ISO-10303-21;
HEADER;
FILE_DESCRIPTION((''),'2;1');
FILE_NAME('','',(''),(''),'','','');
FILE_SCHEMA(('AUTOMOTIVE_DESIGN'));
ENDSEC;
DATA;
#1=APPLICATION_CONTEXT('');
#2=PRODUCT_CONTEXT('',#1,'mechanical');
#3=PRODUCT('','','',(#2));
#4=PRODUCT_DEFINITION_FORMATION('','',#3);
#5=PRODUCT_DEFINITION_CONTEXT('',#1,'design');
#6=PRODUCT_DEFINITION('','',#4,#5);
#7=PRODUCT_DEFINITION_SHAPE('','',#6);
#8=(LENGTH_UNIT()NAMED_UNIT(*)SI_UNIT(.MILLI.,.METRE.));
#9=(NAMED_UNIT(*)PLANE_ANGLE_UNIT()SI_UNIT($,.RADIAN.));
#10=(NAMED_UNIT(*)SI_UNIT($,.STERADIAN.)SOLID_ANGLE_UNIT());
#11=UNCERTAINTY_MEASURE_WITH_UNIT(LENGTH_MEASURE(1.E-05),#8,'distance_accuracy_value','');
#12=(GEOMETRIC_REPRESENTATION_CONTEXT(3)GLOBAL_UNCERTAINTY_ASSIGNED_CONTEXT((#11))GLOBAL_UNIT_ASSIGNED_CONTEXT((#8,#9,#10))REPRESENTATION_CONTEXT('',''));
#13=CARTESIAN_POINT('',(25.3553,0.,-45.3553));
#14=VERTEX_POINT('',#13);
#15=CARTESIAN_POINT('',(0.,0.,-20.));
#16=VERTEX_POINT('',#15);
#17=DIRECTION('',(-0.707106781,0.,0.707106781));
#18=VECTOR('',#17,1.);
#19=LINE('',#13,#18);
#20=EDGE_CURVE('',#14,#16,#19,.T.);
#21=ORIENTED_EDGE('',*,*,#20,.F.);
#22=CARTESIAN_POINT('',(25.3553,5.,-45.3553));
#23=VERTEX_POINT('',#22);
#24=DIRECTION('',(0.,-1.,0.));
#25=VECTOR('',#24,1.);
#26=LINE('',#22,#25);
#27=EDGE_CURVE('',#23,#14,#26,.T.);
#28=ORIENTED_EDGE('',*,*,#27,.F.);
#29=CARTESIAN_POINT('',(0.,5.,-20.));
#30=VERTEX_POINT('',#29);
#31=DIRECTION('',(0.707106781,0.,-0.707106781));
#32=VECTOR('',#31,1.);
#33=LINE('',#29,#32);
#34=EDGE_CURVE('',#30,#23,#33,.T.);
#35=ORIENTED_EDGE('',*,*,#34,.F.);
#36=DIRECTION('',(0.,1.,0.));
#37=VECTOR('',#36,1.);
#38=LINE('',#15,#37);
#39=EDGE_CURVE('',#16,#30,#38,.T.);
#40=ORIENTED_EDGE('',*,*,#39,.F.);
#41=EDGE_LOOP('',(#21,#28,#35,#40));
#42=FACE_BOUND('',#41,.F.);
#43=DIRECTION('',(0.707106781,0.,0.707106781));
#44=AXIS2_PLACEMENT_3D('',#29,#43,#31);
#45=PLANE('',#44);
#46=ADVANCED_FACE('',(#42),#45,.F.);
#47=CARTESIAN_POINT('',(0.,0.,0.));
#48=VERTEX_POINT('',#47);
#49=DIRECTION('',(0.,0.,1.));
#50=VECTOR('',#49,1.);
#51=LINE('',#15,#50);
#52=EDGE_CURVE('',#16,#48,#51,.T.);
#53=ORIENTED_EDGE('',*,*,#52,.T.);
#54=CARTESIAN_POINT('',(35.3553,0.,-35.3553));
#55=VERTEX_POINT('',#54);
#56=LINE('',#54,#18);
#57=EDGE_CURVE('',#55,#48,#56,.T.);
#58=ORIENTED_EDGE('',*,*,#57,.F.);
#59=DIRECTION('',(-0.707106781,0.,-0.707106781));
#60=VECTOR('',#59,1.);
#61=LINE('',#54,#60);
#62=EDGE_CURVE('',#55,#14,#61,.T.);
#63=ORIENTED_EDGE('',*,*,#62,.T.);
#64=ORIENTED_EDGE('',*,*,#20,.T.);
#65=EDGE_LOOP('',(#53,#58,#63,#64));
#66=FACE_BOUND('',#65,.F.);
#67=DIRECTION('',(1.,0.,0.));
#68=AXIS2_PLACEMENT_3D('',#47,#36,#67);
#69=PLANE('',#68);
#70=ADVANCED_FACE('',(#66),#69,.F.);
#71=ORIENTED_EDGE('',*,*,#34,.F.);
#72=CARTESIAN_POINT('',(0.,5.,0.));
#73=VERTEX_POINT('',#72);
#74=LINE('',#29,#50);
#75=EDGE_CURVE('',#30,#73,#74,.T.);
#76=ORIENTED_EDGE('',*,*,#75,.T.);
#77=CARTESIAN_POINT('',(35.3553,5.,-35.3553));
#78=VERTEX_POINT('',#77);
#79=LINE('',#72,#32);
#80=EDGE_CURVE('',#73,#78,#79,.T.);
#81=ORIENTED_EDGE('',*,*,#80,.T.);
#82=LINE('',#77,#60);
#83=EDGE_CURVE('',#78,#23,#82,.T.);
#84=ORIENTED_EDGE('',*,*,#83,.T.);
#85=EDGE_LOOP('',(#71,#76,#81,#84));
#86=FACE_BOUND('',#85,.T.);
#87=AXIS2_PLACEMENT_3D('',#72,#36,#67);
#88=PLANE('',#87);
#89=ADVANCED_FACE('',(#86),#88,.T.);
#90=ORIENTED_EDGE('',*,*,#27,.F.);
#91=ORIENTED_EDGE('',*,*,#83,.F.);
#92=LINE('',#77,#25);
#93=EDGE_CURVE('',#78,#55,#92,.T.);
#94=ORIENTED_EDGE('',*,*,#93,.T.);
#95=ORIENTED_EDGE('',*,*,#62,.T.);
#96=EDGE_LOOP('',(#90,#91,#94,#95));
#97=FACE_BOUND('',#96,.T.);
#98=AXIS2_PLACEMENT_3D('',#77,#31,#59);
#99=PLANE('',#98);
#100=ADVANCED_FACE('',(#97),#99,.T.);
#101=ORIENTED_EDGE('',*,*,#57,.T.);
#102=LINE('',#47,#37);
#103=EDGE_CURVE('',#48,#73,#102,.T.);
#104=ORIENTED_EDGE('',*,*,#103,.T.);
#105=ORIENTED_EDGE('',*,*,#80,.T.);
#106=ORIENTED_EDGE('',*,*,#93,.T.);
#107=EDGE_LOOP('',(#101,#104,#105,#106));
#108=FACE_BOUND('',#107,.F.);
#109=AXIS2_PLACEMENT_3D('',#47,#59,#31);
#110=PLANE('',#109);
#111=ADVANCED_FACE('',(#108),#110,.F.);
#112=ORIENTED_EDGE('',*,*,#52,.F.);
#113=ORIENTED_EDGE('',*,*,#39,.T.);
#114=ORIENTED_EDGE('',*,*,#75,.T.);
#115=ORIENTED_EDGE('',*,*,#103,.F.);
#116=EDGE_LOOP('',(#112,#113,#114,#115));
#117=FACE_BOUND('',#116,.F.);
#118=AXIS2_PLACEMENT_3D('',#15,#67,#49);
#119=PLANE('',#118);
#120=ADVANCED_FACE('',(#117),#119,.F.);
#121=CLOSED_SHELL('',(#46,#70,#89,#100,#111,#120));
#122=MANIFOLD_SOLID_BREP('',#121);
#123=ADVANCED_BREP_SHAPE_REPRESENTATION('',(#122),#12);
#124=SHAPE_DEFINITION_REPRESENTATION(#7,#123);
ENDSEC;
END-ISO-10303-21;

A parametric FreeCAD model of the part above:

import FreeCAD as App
import Part
import Sketcher
from FreeCAD import Vector
Q = App.Units.Quantity


def add_polygon(sketch, points):
    """Adds a closed chain of lines whose ends are joined by coincident constraints."""
    first, n = sketch.GeometryCount, len(points)
    for a, b in zip(points, points[1:] + points[:1]):
        sketch.addGeometry(Part.LineSegment(App.Vector(*a, 0), App.Vector(*b, 0)), False)
    for i in range(n):
        sketch.addConstraint(Sketcher.Constraint("Coincident", first + i, 2, first + (i + 1) % n, 1))

doc = App.newDocument("Part")
body = doc.addObject("PartDesign::Body", "Body")

# Sketch on XZ plane
sketch1 = body.newObject("Sketcher::SketchObject", "Sketch")
sketch1.AttachmentSupport = (doc.getObject("XZ_Plane"), [""])
sketch1.MapMode = "FlatFace"
add_polygon(sketch1, [(0, -20), (0, 0), (20, 0), (20, -20)])  # lines 0-3
sketch1.addConstraint([
    Sketcher.Constraint("Vertical", 0),
    Sketcher.Constraint("Horizontal", 1),
    Sketcher.Constraint("Vertical", 2),
    Sketcher.Constraint("Horizontal", 3),
    Sketcher.Constraint("Coincident", 0, 2, -1, 1),
    Sketcher.Constraint("Equal", 3, 0),
    Sketcher.Constraint("DistanceX", 1, 1, 1, 2, Q("20 mm")),
])
pad1 = body.newObject("PartDesign::Pad", "Pad")
pad1.Profile = sketch1
pad1.Length = 5
pad1.Reversed = True

# Sketch on XZ plane
sketch2 = body.newObject("Sketcher::SketchObject", "Sketch001")
sketch2.AttachmentSupport = (doc.getObject("XZ_Plane"), [""])
sketch2.MapMode = "FlatFace"
add_polygon(sketch2, [(20, 0), (0, 0), (20, -20)])  # lines 0-2
sketch2.addConstraint([
    Sketcher.Constraint("Horizontal", 0),
    Sketcher.Constraint("Vertical", 2),
    Sketcher.Constraint("Coincident", 0, 2, -1, 1),
    Sketcher.Constraint("Equal", 0, 2),
    Sketcher.Constraint("DistanceX", 0, 2, 0, 1, Q("20 mm")),
])
pocket1 = body.newObject("PartDesign::Pocket", "Pocket")
pocket1.Profile = sketch2
pocket1.Length = 5

# Sketch on XZ plane
sketch3 = body.newObject("Sketcher::SketchObject", "Sketch002")
sketch3.AttachmentSupport = (doc.getObject("XZ_Plane"), [""])
sketch3.MapMode = "FlatFace"
sketch3.AttachmentOffset = App.Placement(Vector(0, 0, -5), App.Rotation())
add_polygon(sketch3, [(0, -20), (20, -20), (35, -35), (25, -45)])  # lines 0-3
sketch3.addConstraint([
    Sketcher.Constraint("Horizontal", 0),
    Sketcher.Constraint("PointOnObject", 3, 2, -2),
    Sketcher.Constraint("Perpendicular", 1, 2),
    Sketcher.Constraint("Perpendicular", 2, 3),
    Sketcher.Constraint("Angle", 1, Q("-45 deg")),
    Sketcher.Constraint("DistanceX", 0, 1, 0, 2, Q("20 mm")),
    Sketcher.Constraint("DistanceY", 0, 2, -1, 1, Q("20 mm")),
    Sketcher.Constraint("Distance", 1, Q("21.7157 mm")),
])
pad2 = body.newObject("PartDesign::Pad", "Pad001")
pad2.Profile = sketch3
pad2.Length = 5

doc.recompute()
